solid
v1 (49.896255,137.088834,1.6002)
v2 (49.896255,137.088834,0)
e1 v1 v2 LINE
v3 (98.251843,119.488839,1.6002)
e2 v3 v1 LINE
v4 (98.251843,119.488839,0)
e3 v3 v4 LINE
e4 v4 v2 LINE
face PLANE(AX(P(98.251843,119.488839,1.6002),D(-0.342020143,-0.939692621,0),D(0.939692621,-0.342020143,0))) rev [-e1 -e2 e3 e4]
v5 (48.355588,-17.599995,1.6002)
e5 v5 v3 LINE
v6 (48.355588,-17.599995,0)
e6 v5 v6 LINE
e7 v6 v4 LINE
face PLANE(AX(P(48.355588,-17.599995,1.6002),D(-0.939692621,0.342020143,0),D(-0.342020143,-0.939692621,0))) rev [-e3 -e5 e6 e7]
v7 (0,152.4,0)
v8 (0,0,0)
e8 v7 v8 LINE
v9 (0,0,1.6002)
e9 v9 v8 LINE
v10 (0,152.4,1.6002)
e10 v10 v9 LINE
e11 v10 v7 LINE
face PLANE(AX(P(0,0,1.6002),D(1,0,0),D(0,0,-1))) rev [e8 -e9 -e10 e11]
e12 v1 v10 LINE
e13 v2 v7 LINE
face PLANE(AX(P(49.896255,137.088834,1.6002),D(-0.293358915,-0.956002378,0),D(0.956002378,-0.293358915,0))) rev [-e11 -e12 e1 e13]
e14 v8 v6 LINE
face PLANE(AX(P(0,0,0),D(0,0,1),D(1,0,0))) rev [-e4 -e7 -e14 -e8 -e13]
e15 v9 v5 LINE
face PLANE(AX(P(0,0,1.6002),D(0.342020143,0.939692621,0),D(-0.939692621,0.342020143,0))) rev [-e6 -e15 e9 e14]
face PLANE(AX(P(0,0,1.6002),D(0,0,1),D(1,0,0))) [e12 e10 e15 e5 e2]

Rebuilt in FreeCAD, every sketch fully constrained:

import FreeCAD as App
import Part
import Sketcher
from FreeCAD import Vector
Q = App.Units.Quantity

doc = App.newDocument("Part")
params = doc.addObject("Spreadsheet::Sheet", "Params")
for row, (alias, value) in enumerate([
    ("sketch1_height", "6 in"),
    ("pad1_length", "0.063 in"),
], start=1):
    params.set(f"A{row}", alias)
    params.set(f"B{row}", "=" + value)
    params.setAlias(f"B{row}", alias)

body = doc.addObject("PartDesign::Body", "Body")

# Sketch on XY plane
sketch1 = doc.addObject("Sketcher::SketchObject", "Sketch")
body.addObject(sketch1)
sketch1.AttachmentSupport = (doc.XY_Plane, [""])
sketch1.MapMode = "FlatFace"
sketch1.addGeometry(Part.LineSegment(Vector(0, 152, 0), Vector(0, 0, 0)), False)
sketch1.addGeometry(Part.LineSegment(Vector(0, 0, 0), Vector(48, -18, 0)), False)
sketch1.addGeometry(Part.LineSegment(Vector(48, -18, 0), Vector(98, 119, 0)), False)
sketch1.addGeometry(Part.LineSegment(Vector(98, 119, 0), Vector(50, 137, 0)), False)
sketch1.addGeometry(Part.LineSegment(Vector(50, 137, 0), Vector(0, 152, 0)), False)
sketch1.addConstraint(Sketcher.Constraint("Coincident", 0, 2, 1, 1))
sketch1.addConstraint(Sketcher.Constraint("Coincident", 1, 2, 2, 1))
sketch1.addConstraint(Sketcher.Constraint("Coincident", 2, 2, 3, 1))
sketch1.addConstraint(Sketcher.Constraint("Coincident", 3, 2, 4, 1))
sketch1.addConstraint(Sketcher.Constraint("Coincident", 4, 2, 0, 1))
sketch1.addConstraint(Sketcher.Constraint("Vertical", 0))
sketch1.addConstraint(Sketcher.Constraint("Coincident", 0, 2, -1, 1))
sketch1.addConstraint(Sketcher.Constraint("Perpendicular", 1, 2))
sketch1.addConstraint(Sketcher.Constraint("Perpendicular", 2, 3))
sketch1.addConstraint(Sketcher.Constraint("Equal", 1, 3))
sketch1.addConstraint(Sketcher.Constraint("DistanceY", 0, 2, 0, 1, Q("6 in")))
sketch1.addConstraint(Sketcher.Constraint("Angle", 1, Q("-20 deg")))
sketch1.addConstraint(Sketcher.Constraint("Distance", 2, Q("145.88689 mm")))
sketch1.addConstraint(Sketcher.Constraint("DistanceX", -1, 1, 1, 2, Q("48.355588 mm")))
sketch1.setExpression("Constraints[10]", "Params.sketch1_height")
pad1 = doc.addObject("PartDesign::Pad", "Pad")
body.addObject(pad1)
pad1.Profile = sketch1
pad1.setExpression("Length", "Params.pad1_length")

doc.recompute()
